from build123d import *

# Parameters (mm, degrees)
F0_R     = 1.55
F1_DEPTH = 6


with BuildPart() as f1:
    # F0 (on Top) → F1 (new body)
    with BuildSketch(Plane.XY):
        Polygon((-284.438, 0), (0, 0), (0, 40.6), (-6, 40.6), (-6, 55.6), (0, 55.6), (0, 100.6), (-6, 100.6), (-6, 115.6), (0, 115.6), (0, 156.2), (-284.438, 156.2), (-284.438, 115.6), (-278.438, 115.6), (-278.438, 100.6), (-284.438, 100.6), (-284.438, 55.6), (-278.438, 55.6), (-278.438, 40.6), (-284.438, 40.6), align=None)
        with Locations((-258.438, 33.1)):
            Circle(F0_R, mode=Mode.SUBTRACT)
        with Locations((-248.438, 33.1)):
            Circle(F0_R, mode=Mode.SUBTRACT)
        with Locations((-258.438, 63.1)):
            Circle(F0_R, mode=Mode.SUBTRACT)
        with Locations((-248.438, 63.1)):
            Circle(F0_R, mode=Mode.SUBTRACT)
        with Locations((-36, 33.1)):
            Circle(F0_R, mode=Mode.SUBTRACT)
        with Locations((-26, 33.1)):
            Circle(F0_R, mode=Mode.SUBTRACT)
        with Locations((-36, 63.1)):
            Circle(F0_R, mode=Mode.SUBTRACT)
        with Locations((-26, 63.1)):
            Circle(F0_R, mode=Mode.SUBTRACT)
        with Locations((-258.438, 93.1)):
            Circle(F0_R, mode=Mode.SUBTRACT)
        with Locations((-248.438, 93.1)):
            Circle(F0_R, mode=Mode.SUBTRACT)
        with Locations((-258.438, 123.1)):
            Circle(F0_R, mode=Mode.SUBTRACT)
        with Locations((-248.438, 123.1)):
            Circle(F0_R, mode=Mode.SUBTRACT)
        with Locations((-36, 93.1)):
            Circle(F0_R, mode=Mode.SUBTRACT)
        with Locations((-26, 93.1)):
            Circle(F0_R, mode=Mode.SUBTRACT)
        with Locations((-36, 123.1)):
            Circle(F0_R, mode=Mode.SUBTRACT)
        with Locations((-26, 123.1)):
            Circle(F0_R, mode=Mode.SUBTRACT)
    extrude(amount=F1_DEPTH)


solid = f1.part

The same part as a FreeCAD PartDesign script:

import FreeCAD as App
import Part
import Sketcher
Q = App.Units.Quantity

doc = App.newDocument("Part")
params = doc.addObject("Spreadsheet::Sheet", "Params")
for row, (alias, value) in enumerate([
    ("sketch1_diameter", "3.1 mm"),
    ("sketch1_width", "6 mm"),
    ("sketch1_height", "15 mm"),
    ("sketch1_height2", "45 mm"),
    ("sketch1_height3", "40.6 mm"),
    ("pad1_length", "6 mm"),
], start=1):
    params.set(f"A{row}", alias)
    params.set(f"B{row}", "=" + value)
    params.setAlias(f"B{row}", alias)

body = doc.addObject("PartDesign::Body", "Body")

# Sketch on XY plane
sketch1 = body.newObject("Sketcher::SketchObject", "Sketch")
sketch1.AttachmentSupport = (doc.getObject("XY_Plane"), [""])
sketch1.MapMode = "FlatFace"
sketch1.addGeometry(Part.LineSegment(App.Vector(-284.4, 0, 0), App.Vector(0, 0, 0)), False)
sketch1.addGeometry(Part.LineSegment(App.Vector(0, 0, 0), App.Vector(0, 40.6, 0)), False)
sketch1.addGeometry(Part.LineSegment(App.Vector(0, 40.6, 0), App.Vector(-6, 40.6, 0)), False)
sketch1.addGeometry(Part.LineSegment(App.Vector(-6, 40.6, 0), App.Vector(-6, 55.6, 0)), False)
sketch1.addGeometry(Part.LineSegment(App.Vector(-6, 55.6, 0), App.Vector(0, 55.6, 0)), False)
sketch1.addGeometry(Part.LineSegment(App.Vector(0, 55.6, 0), App.Vector(0, 100.6, 0)), False)
sketch1.addGeometry(Part.LineSegment(App.Vector(0, 100.6, 0), App.Vector(-6, 100.6, 0)), False)
sketch1.addGeometry(Part.LineSegment(App.Vector(-6, 100.6, 0), App.Vector(-6, 115.6, 0)), False)
sketch1.addGeometry(Part.LineSegment(App.Vector(-6, 115.6, 0), App.Vector(0, 115.6, 0)), False)
sketch1.addGeometry(Part.LineSegment(App.Vector(0, 115.6, 0), App.Vector(0, 156.2, 0)), False)
sketch1.addGeometry(Part.LineSegment(App.Vector(0, 156.2, 0), App.Vector(-284.4, 156.2, 0)), False)
sketch1.addGeometry(Part.LineSegment(App.Vector(-284.4, 156.2, 0), App.Vector(-284.4, 115.6, 0)), False)
sketch1.addGeometry(Part.LineSegment(App.Vector(-284.4, 115.6, 0), App.Vector(-278.4, 115.6, 0)), False)
sketch1.addGeometry(Part.LineSegment(App.Vector(-278.4, 115.6, 0), App.Vector(-278.4, 100.6, 0)), False)
sketch1.addGeometry(Part.LineSegment(App.Vector(-278.4, 100.6, 0), App.Vector(-284.4, 100.6, 0)), False)
sketch1.addGeometry(Part.LineSegment(App.Vector(-284.4, 100.6, 0), App.Vector(-284.4, 55.6, 0)), False)
sketch1.addGeometry(Part.LineSegment(App.Vector(-284.4, 55.6, 0), App.Vector(-278.4, 55.6, 0)), False)
sketch1.addGeometry(Part.LineSegment(App.Vector(-278.4, 55.6, 0), App.Vector(-278.4, 40.6, 0)), False)
sketch1.addGeometry(Part.LineSegment(App.Vector(-278.4, 40.6, 0), App.Vector(-284.4, 40.6, 0)), False)
sketch1.addGeometry(Part.LineSegment(App.Vector(-284.4, 40.6, 0), App.Vector(-284.4, 0, 0)), False)
sketch1.addGeometry(Part.Circle(App.Vector(-258.4, 33.1, 0), App.Vector(0, 0, 1), 1.6), False)
sketch1.addGeometry(Part.Circle(App.Vector(-248.4, 33.1, 0), App.Vector(0, 0, 1), 1.6), False)
sketch1.addGeometry(Part.Circle(App.Vector(-258.4, 63.1, 0), App.Vector(0, 0, 1), 1.6), False)
sketch1.addGeometry(Part.Circle(App.Vector(-248.4, 63.1, 0), App.Vector(0, 0, 1), 1.6), False)
sketch1.addGeometry(Part.Circle(App.Vector(-36, 33.1, 0), App.Vector(0, 0, 1), 1.6), False)
sketch1.addGeometry(Part.Circle(App.Vector(-26, 33.1, 0), App.Vector(0, 0, 1), 1.6), False)
sketch1.addGeometry(Part.Circle(App.Vector(-36, 63.1, 0), App.Vector(0, 0, 1), 1.6), False)
sketch1.addGeometry(Part.Circle(App.Vector(-26, 63.1, 0), App.Vector(0, 0, 1), 1.6), False)
sketch1.addGeometry(Part.Circle(App.Vector(-258.4, 93.1, 0), App.Vector(0, 0, 1), 1.6), False)
sketch1.addGeometry(Part.Circle(App.Vector(-248.4, 93.1, 0), App.Vector(0, 0, 1), 1.6), False)
sketch1.addGeometry(Part.Circle(App.Vector(-258.4, 123.1, 0), App.Vector(0, 0, 1), 1.6), False)
sketch1.addGeometry(Part.Circle(App.Vector(-248.4, 123.1, 0), App.Vector(0, 0, 1), 1.6), False)
sketch1.addGeometry(Part.Circle(App.Vector(-36, 93.1, 0), App.Vector(0, 0, 1), 1.6), False)
sketch1.addGeometry(Part.Circle(App.Vector(-26, 93.1, 0), App.Vector(0, 0, 1), 1.6), False)
sketch1.addGeometry(Part.Circle(App.Vector(-36, 123.1, 0), App.Vector(0, 0, 1), 1.6), False)
sketch1.addGeometry(Part.Circle(App.Vector(-26, 123.1, 0), App.Vector(0, 0, 1), 1.6), False)
sketch1.addConstraint(Sketcher.Constraint("Coincident", 0, 2, 1, 1))
sketch1.addConstraint(Sketcher.Constraint("Coincident", 1, 2, 2, 1))
sketch1.addConstraint(Sketcher.Constraint("Coincident", 2, 2, 3, 1))
sketch1.addConstraint(Sketcher.Constraint("Coincident", 3, 2, 4, 1))
sketch1.addConstraint(Sketcher.Constraint("Coincident", 4, 2, 5, 1))
sketch1.addConstraint(Sketcher.Constraint("Coincident", 5, 2, 6, 1))
sketch1.addConstraint(Sketcher.Constraint("Coincident", 6, 2, 7, 1))
sketch1.addConstraint(Sketcher.Constraint("Coincident", 7, 2, 8, 1))
sketch1.addConstraint(Sketcher.Constraint("Coincident", 8, 2, 9, 1))
sketch1.addConstraint(Sketcher.Constraint("Coincident", 9, 2, 10, 1))
sketch1.addConstraint(Sketcher.Constraint("Coincident", 10, 2, 11, 1))
sketch1.addConstraint(Sketcher.Constraint("Coincident", 11, 2, 12, 1))
sketch1.addConstraint(Sketcher.Constraint("Coincident", 12, 2, 13, 1))
sketch1.addConstraint(Sketcher.Constraint("Coincident", 13, 2, 14, 1))
sketch1.addConstraint(Sketcher.Constraint("Coincident", 14, 2, 15, 1))
sketch1.addConstraint(Sketcher.Constraint("Coincident", 15, 2, 16, 1))
sketch1.addConstraint(Sketcher.Constraint("Coincident", 16, 2, 17, 1))
sketch1.addConstraint(Sketcher.Constraint("Coincident", 17, 2, 18, 1))
sketch1.addConstraint(Sketcher.Constraint("Coincident", 18, 2, 19, 1))
sketch1.addConstraint(Sketcher.Constraint("Coincident", 19, 2, 0, 1))
sketch1.addConstraint(Sketcher.Constraint("Horizontal", 0))
sketch1.addConstraint(Sketcher.Constraint("Vertical", 1))
sketch1.addConstraint(Sketcher.Constraint("Horizontal", 2))
sketch1.addConstraint(Sketcher.Constraint("Vertical", 3))
sketch1.addConstraint(Sketcher.Constraint("Horizontal", 4))
sketch1.addConstraint(Sketcher.Constraint("Vertical", 5))
sketch1.addConstraint(Sketcher.Constraint("Horizontal", 6))
sketch1.addConstraint(Sketcher.Constraint("Vertical", 7))
sketch1.addConstraint(Sketcher.Constraint("Horizontal", 8))
sketch1.addConstraint(Sketcher.Constraint("Vertical", 9))
sketch1.addConstraint(Sketcher.Constraint("Horizontal", 10))
sketch1.addConstraint(Sketcher.Constraint("Vertical", 11))
sketch1.addConstraint(Sketcher.Constraint("Horizontal", 12))
sketch1.addConstraint(Sketcher.Constraint("Vertical", 13))
sketch1.addConstraint(Sketcher.Constraint("Horizontal", 14))
sketch1.addConstraint(Sketcher.Constraint("Vertical", 15))
sketch1.addConstraint(Sketcher.Constraint("Horizontal", 16))
sketch1.addConstraint(Sketcher.Constraint("Vertical", 17))
sketch1.addConstraint(Sketcher.Constraint("Horizontal", 18))
sketch1.addConstraint(Sketcher.Constraint("Vertical", 19))
sketch1.addConstraint(Sketcher.Constraint("Coincident", 0, 2, -1, 1))
sketch1.addConstraint(Sketcher.Constraint("Equal", 20, 21))
sketch1.addConstraint(Sketcher.Constraint("Equal", 21, 22))
sketch1.addConstraint(Sketcher.Constraint("Equal", 22, 23))
sketch1.addConstraint(Sketcher.Constraint("Equal", 23, 24))
sketch1.addConstraint(Sketcher.Constraint("Equal", 24, 25))
sketch1.addConstraint(Sketcher.Constraint("Equal", 25, 26))
sketch1.addConstraint(Sketcher.Constraint("Equal", 26, 27))
sketch1.addConstraint(Sketcher.Constraint("Equal", 27, 28))
sketch1.addConstraint(Sketcher.Constraint("Equal", 28, 29))
sketch1.addConstraint(Sketcher.Constraint("Equal", 29, 30))
sketch1.addConstraint(Sketcher.Constraint("Equal", 30, 31))
sketch1.addConstraint(Sketcher.Constraint("Equal", 31, 32))
sketch1.addConstraint(Sketcher.Constraint("Equal", 32, 33))
sketch1.addConstraint(Sketcher.Constraint("Equal", 33, 34))
sketch1.addConstraint(Sketcher.Constraint("Equal", 34, 35))
sketch1.addConstraint(Sketcher.Constraint("PointOnObject", 4, 2, -2))
sketch1.addConstraint(Sketcher.Constraint("PointOnObject", 8, 2, -2))
sketch1.addConstraint(Sketcher.Constraint("Horizontal", 20, 3, 21, 3))
sketch1.addConstraint(Sketcher.Constraint("Horizontal", 22, 3, 23, 3))
sketch1.addConstraint(Sketcher.Constraint("Horizontal", 21, 3, 24, 3))
sketch1.addConstraint(Sketcher.Constraint("Horizontal", 24, 3, 25, 3))
sketch1.addConstraint(Sketcher.Constraint("Horizontal", 23, 3, 26, 3))
sketch1.addConstraint(Sketcher.Constraint("Horizontal", 26, 3, 27, 3))
sketch1.addConstraint(Sketcher.Constraint("Horizontal", 28, 3, 29, 3))
sketch1.addConstraint(Sketcher.Constraint("Horizontal", 30, 3, 31, 3))
sketch1.addConstraint(Sketcher.Constraint("Horizontal", 29, 3, 32, 3))
sketch1.addConstraint(Sketcher.Constraint("Horizontal", 32, 3, 33, 3))
sketch1.addConstraint(Sketcher.Constraint("Horizontal", 31, 3, 34, 3))
sketch1.addConstraint(Sketcher.Constraint("Horizontal", 34, 3, 35, 3))
sketch1.addConstraint(Sketcher.Constraint("Horizontal", 8, 2, 11, 2))
sketch1.addConstraint(Sketcher.Constraint("Horizontal", 6, 2, 13, 2))
sketch1.addConstraint(Sketcher.Constraint("Horizontal", 4, 2, 15, 2))
sketch1.addConstraint(Sketcher.Constraint("Horizontal", 2, 2, 17, 2))
sketch1.addConstraint(Sketcher.Constraint("Vertical", 20, 3, 22, 3))
sketch1.addConstraint(Sketcher.Constraint("Vertical", 21, 3, 23, 3))
sketch1.addConstraint(Sketcher.Constraint("Vertical", 24, 3, 26, 3))
sketch1.addConstraint(Sketcher.Constraint("Vertical", 25, 3, 27, 3))
sketch1.addConstraint(Sketcher.Constraint("Vertical", 22, 3, 28, 3))
sketch1.addConstraint(Sketcher.Constraint("Vertical", 23, 3, 29, 3))
sketch1.addConstraint(Sketcher.Constraint("Vertical", 28, 3, 30, 3))
sketch1.addConstraint(Sketcher.Constraint("Vertical", 29, 3, 31, 3))
sketch1.addConstraint(Sketcher.Constraint("Vertical", 26, 3, 32, 3))
sketch1.addConstraint(Sketcher.Constraint("Vertical", 27, 3, 33, 3))
sketch1.addConstraint(Sketcher.Constraint("Vertical", 32, 3, 34, 3))
sketch1.addConstraint(Sketcher.Constraint("Vertical", 33, 3, 35, 3))
sketch1.addConstraint(Sketcher.Constraint("Vertical", 3, 2, 6, 2))
sketch1.addConstraint(Sketcher.Constraint("Vertical", 11, 2, 14, 2))
sketch1.addConstraint(Sketcher.Constraint("Vertical", 13, 2, 16, 2))
sketch1.addConstraint(Sketcher.Constraint("Vertical", 15, 2, 18, 2))
sketch1.addConstraint(Sketcher.Constraint("Equal", 8, 12))
sketch1.addConstraint(Sketcher.Constraint("Equal", 3, 7))
sketch1.addConstraint(Sketcher.Constraint("Equal", 1, 9))
sketch1.addConstraint(Sketcher.Constraint("Diameter", 20, Q("3.1 mm")))
sketch1.addConstraint(Sketcher.Constraint("DistanceX", 2, 2, 2, 1, Q("6 mm")))
sketch1.addConstraint(Sketcher.Constraint("DistanceY", 3, 1, 3, 2, Q("15 mm")))
sketch1.addConstraint(Sketcher.Constraint("DistanceY", 5, 1, 5, 2, Q("45 mm")))
sketch1.addConstraint(Sketcher.Constraint("DistanceY", 1, 1, 1, 2, Q("40.6 mm")))
sketch1.addConstraint(Sketcher.Constraint("DistanceX", 24, 3, -1, 1, Q("36 mm")))
sketch1.addConstraint(Sketcher.Constraint("DistanceX", 25, 3, -1, 1, Q("26 mm")))
sketch1.addConstraint(Sketcher.Constraint("DistanceX", 20, 3, 21, 3, Q("10 mm")))
sketch1.addConstraint(Sketcher.Constraint("DistanceY", 20, 3, 22, 3, Q("30 mm")))
sketch1.addConstraint(Sketcher.Constraint("DistanceY", 22, 3, 28, 3, Q("30 mm")))
sketch1.addConstraint(Sketcher.Constraint("DistanceY", 28, 3, 30, 3, Q("30 mm")))
sketch1.addConstraint(Sketcher.Constraint("DistanceX", 10, 2, 30, 3, Q("26 mm")))
sketch1.addConstraint(Sketcher.Constraint("DistanceY", -1, 1, 20, 3, Q("33.1 mm")))
sketch1.addConstraint(Sketcher.Constraint("DistanceX", 0, 1, 0, 2, Q("284.438 mm")))
sketch1.setExpression("Constraints[93]", "Params.sketch1_diameter")
sketch1.setExpression("Constraints[94]", "Params.sketch1_width")
sketch1.setExpression("Constraints[95]", "Params.sketch1_height")
sketch1.setExpression("Constraints[96]", "Params.sketch1_height2")
sketch1.setExpression("Constraints[97]", "Params.sketch1_height3")
pad1 = body.newObject("PartDesign::Pad", "Pad")
pad1.Profile = sketch1
pad1.setExpression("Length", "Params.pad1_length")

doc.recompute()
